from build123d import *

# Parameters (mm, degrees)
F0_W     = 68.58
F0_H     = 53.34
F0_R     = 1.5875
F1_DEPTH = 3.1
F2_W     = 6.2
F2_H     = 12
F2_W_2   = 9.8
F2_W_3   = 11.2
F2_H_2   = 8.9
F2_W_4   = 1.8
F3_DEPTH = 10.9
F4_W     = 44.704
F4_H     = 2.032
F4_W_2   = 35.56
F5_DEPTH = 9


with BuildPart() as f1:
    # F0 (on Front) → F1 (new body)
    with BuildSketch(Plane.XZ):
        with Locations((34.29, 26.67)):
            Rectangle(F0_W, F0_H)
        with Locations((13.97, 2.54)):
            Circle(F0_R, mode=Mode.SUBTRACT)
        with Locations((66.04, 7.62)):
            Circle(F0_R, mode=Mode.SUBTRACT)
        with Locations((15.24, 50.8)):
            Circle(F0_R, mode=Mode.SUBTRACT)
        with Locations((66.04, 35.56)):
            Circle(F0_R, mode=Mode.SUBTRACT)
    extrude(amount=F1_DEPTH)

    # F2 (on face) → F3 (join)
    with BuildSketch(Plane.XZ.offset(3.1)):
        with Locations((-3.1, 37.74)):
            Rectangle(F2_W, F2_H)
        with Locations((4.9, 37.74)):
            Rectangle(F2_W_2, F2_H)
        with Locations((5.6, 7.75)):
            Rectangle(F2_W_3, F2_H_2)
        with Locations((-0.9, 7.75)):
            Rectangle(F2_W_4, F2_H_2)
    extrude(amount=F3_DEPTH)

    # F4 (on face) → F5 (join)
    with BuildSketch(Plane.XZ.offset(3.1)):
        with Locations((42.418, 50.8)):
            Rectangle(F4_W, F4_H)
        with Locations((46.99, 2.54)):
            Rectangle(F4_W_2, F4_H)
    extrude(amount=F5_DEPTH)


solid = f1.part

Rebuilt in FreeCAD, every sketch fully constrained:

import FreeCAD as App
import Part
import Sketcher

V = App.Vector

doc = App.newDocument("Part")
body = doc.addObject("PartDesign::Body", "Body")

# Sketch on XZ plane
sketch1 = body.newObject("Sketcher::SketchObject", "Sketch")
sketch1.AttachmentSupport = (doc.getObject("XZ_Plane"), [""])
sketch1.MapMode = "FlatFace"
sketch1.addGeometry([
    Part.LineSegment(V(0, 53.34, 0), V(0, 0, 0)),  # 0
    Part.LineSegment(V(0, 0, 0), V(68.58, 0, 0)),  # 1
    Part.LineSegment(V(68.58, 0, 0), V(68.58, 53.34, 0)),  # 2
    Part.LineSegment(V(68.58, 53.34, 0), V(0, 53.34, 0)),  # 3
    Part.Circle(V(13.97, 2.54, 0), V(0, 0, 1), 1.5875),  # 4
    Part.Circle(V(66.04, 7.62, 0), V(0, 0, 1), 1.5875),  # 5
    Part.Circle(V(15.24, 50.8, 0), V(0, 0, 1), 1.5875),  # 6
    Part.Circle(V(66.04, 35.56, 0), V(0, 0, 1), 1.5875),  # 7
], False)
sketch1.addConstraint([
    Sketcher.Constraint("Coincident", 0, 2, 1, 1),
    Sketcher.Constraint("Coincident", 1, 2, 2, 1),
    Sketcher.Constraint("Coincident", 2, 2, 3, 1),
    Sketcher.Constraint("Coincident", 3, 2, 0, 1),
    Sketcher.Constraint("Vertical", 0),
    Sketcher.Constraint("Horizontal", 1),
    Sketcher.Constraint("Vertical", 2),
    Sketcher.Constraint("Horizontal", 3),
    Sketcher.Constraint("Coincident", 0, 2, -1, 1),
    Sketcher.Constraint("Equal", 4, 5),
    Sketcher.Constraint("Equal", 5, 6),
    Sketcher.Constraint("Equal", 6, 7),
    Sketcher.Constraint("Vertical", 5, 3, 7, 3),
    Sketcher.Constraint("Diameter", 4, 3.175),
    Sketcher.Constraint("DistanceX", 1, 1, 1, 2, 68.58),
    Sketcher.Constraint("DistanceY", 0, 2, 0, 1, 53.34),
    Sketcher.Constraint("DistanceY", -1, 1, 6, 3, 50.8),
    Sketcher.Constraint("DistanceX", 6, 3, 5, 3, 50.8),
    Sketcher.Constraint("DistanceY", 4, 3, 2, 2, 50.8),
    Sketcher.Constraint("DistanceX", -1, 1, 4, 3, 13.97),
    Sketcher.Constraint("DistanceX", -1, 1, 5, 3, 66.04),
    Sketcher.Constraint("DistanceY", -1, 1, 5, 3, 7.62),
    Sketcher.Constraint("DistanceY", -1, 1, 7, 3, 35.56),
])
pad1 = body.newObject("PartDesign::Pad", "Pad")
pad1.Profile = sketch1
pad1.Length = 3.1

# Sketch on XZ plane
sketch2 = body.newObject("Sketcher::SketchObject", "Sketch001")
sketch2.AttachmentSupport = (doc.getObject("XZ_Plane"), [""])
sketch2.MapMode = "FlatFace"
sketch2.AttachmentOffset = App.Placement(V(0, 0, 3.1), App.Rotation())
sketch2.addGeometry([
    Part.LineSegment(V(-6.2, 43.74, 0), V(-6.2, 31.74, 0)),  # 0
    Part.LineSegment(V(-6.2, 31.74, 0), V(9.8, 31.74, 0)),  # 1
    Part.LineSegment(V(9.8, 31.74, 0), V(9.8, 43.74, 0)),  # 2
    Part.LineSegment(V(9.8, 43.74, 0), V(-6.2, 43.74, 0)),  # 3
    Part.LineSegment(V(11.2, 3.3, 0), V(11.2, 12.2, 0)),  # 4
    Part.LineSegment(V(11.2, 12.2, 0), V(-1.8, 12.2, 0)),  # 5
    Part.LineSegment(V(-1.8, 12.2, 0), V(-1.8, 3.3, 0)),  # 6
    Part.LineSegment(V(-1.8, 3.3, 0), V(11.2, 3.3, 0)),  # 7
], False)
sketch2.addConstraint([
    Sketcher.Constraint("Coincident", 0, 2, 1, 1),
    Sketcher.Constraint("Coincident", 1, 2, 2, 1),
    Sketcher.Constraint("Coincident", 2, 2, 3, 1),
    Sketcher.Constraint("Coincident", 3, 2, 0, 1),
    Sketcher.Constraint("Coincident", 4, 2, 5, 1),
    Sketcher.Constraint("Coincident", 5, 2, 6, 1),
    Sketcher.Constraint("Coincident", 6, 2, 7, 1),
    Sketcher.Constraint("Coincident", 7, 2, 4, 1),
    Sketcher.Constraint("Vertical", 0),
    Sketcher.Constraint("Horizontal", 1),
    Sketcher.Constraint("Vertical", 2),
    Sketcher.Constraint("Horizontal", 3),
    Sketcher.Constraint("Vertical", 4),
    Sketcher.Constraint("Horizontal", 5),
    Sketcher.Constraint("Vertical", 6),
    Sketcher.Constraint("Horizontal", 7),
    Sketcher.Constraint("DistanceX", 1, 1, 1, 2, 16.0),
    Sketcher.Constraint("DistanceX", 5, 2, 5, 1, 13.0),
    Sketcher.Constraint("DistanceY", 0, 2, 0, 1, 12.0),
    Sketcher.Constraint("DistanceY", 4, 1, 4, 2, 8.9),
    Sketcher.Constraint("DistanceX", 0, 2, -1, 1, 6.2),
    Sketcher.Constraint("DistanceX", -1, 1, 4, 2, 11.2),
    Sketcher.Constraint("DistanceY", -1, 1, 4, 2, 12.2),
    Sketcher.Constraint("DistanceY", -1, 1, 0, 2, 31.74),
])
pad2 = body.newObject("PartDesign::Pad", "Pad001")
pad2.Profile = sketch2
pad2.Length = 10.9

# Sketch on XZ plane
sketch3 = body.newObject("Sketcher::SketchObject", "Sketch002")
sketch3.AttachmentSupport = (doc.getObject("XZ_Plane"), [""])
sketch3.MapMode = "FlatFace"
sketch3.AttachmentOffset = App.Placement(V(0, 0, 3.1), App.Rotation())
sketch3.addGeometry([
    Part.LineSegment(V(20.066, 51.816, 0), V(20.066, 49.784, 0)),  # 0
    Part.LineSegment(V(20.066, 49.784, 0), V(64.77, 49.784, 0)),  # 1
    Part.LineSegment(V(64.77, 49.784, 0), V(64.77, 51.816, 0)),  # 2
    Part.LineSegment(V(64.77, 51.816, 0), V(20.066, 51.816, 0)),  # 3
    Part.LineSegment(V(29.21, 3.556, 0), V(29.21, 1.524, 0)),  # 4
    Part.LineSegment(V(29.21, 1.524, 0), V(64.77, 1.524, 0)),  # 5
    Part.LineSegment(V(64.77, 1.524, 0), V(64.77, 3.556, 0)),  # 6
    Part.LineSegment(V(64.77, 3.556, 0), V(29.21, 3.556, 0)),  # 7
], False)
sketch3.addConstraint([
    Sketcher.Constraint("Coincident", 0, 2, 1, 1),
    Sketcher.Constraint("Coincident", 1, 2, 2, 1),
    Sketcher.Constraint("Coincident", 2, 2, 3, 1),
    Sketcher.Constraint("Coincident", 3, 2, 0, 1),
    Sketcher.Constraint("Coincident", 4, 2, 5, 1),
    Sketcher.Constraint("Coincident", 5, 2, 6, 1),
    Sketcher.Constraint("Coincident", 6, 2, 7, 1),
    Sketcher.Constraint("Coincident", 7, 2, 4, 1),
    Sketcher.Constraint("Vertical", 0),
    Sketcher.Constraint("Horizontal", 1),
    Sketcher.Constraint("Vertical", 2),
    Sketcher.Constraint("Horizontal", 3),
    Sketcher.Constraint("Vertical", 4),
    Sketcher.Constraint("Horizontal", 5),
    Sketcher.Constraint("Vertical", 6),
    Sketcher.Constraint("Horizontal", 7),
    Sketcher.Constraint("Vertical", 2, 2, 5, 2),
    Sketcher.Constraint("Equal", 2, 4),
    Sketcher.Constraint("DistanceX", 5, 1, 5, 2, 35.56),
    Sketcher.Constraint("DistanceX", 1, 1, 1, 2, 44.704),
    Sketcher.Constraint("DistanceY", 0, 2, 0, 1, 2.032),
    Sketcher.Constraint("DistanceX", -1, 1, 1, 2, 64.77),
    Sketcher.Constraint("DistanceY", 4, 2, 0, 2, 48.26),
    Sketcher.Constraint("DistanceY", -1, 1, 0, 2, 49.784),
])
pad3 = body.newObject("PartDesign::Pad", "Pad002")
pad3.Profile = sketch3
pad3.Length = 9

doc.recompute()
